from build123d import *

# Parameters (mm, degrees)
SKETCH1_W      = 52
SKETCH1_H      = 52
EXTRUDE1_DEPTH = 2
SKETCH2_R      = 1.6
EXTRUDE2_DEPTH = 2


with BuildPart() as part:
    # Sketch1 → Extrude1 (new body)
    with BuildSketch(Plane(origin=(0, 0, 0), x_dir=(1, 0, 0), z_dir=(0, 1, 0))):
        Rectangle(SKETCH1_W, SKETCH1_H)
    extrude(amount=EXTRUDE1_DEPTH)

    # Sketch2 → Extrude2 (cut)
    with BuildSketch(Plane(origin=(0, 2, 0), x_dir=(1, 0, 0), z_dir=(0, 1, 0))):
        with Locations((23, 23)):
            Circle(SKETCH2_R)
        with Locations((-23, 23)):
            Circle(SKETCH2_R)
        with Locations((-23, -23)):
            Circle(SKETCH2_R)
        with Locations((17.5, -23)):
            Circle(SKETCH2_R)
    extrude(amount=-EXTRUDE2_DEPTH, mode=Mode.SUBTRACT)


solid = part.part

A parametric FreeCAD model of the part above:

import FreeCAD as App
import Part
import Sketcher
Q = App.Units.Quantity

doc = App.newDocument("Part")
body = doc.addObject("PartDesign::Body", "Body")

# Sketch on XZ plane
sketch1 = body.newObject("Sketcher::SketchObject", "Sketch")
sketch1.AttachmentSupport = (doc.getObject("XZ_Plane"), [""])
sketch1.MapMode = "FlatFace"
sketch1.addGeometry(Part.LineSegment(App.Vector(-26, -26, 0), App.Vector(-26, 26, 0)), False)
sketch1.addGeometry(Part.LineSegment(App.Vector(-26, 26, 0), App.Vector(26, 26, 0)), False)
sketch1.addGeometry(Part.LineSegment(App.Vector(26, 26, 0), App.Vector(26, -26, 0)), False)
sketch1.addGeometry(Part.LineSegment(App.Vector(26, -26, 0), App.Vector(-26, -26, 0)), False)
sketch1.addConstraint(Sketcher.Constraint("Coincident", 0, 2, 1, 1))
sketch1.addConstraint(Sketcher.Constraint("Coincident", 1, 2, 2, 1))
sketch1.addConstraint(Sketcher.Constraint("Coincident", 2, 2, 3, 1))
sketch1.addConstraint(Sketcher.Constraint("Coincident", 3, 2, 0, 1))
sketch1.addConstraint(Sketcher.Constraint("Vertical", 0))
sketch1.addConstraint(Sketcher.Constraint("Horizontal", 1))
sketch1.addConstraint(Sketcher.Constraint("Vertical", 2))
sketch1.addConstraint(Sketcher.Constraint("Horizontal", 3))
sketch1.addConstraint(Sketcher.Constraint("Symmetric", 0, 2, 2, 2, -1, 1))
sketch1.addConstraint(Sketcher.Constraint("Equal", 3, 0))
sketch1.addConstraint(Sketcher.Constraint("DistanceX", 1, 1, 1, 2, Q("52 mm")))
pad1 = body.newObject("PartDesign::Pad", "Pad")
pad1.Profile = sketch1
pad1.Length = 2
pad1.Reversed = True

# Sketch on XZ plane
sketch2 = body.newObject("Sketcher::SketchObject", "Sketch001")
sketch2.AttachmentSupport = (doc.getObject("XZ_Plane"), [""])
sketch2.MapMode = "FlatFace"
sketch2.AttachmentOffset = App.Placement(App.Vector(0, 0, -2), App.Rotation())
sketch2.addGeometry(Part.Circle(App.Vector(23, -23, 0), App.Vector(0, 0, 1), 1.6), False)
sketch2.addGeometry(Part.Circle(App.Vector(-23, -23, 0), App.Vector(0, 0, 1), 1.6), False)
sketch2.addGeometry(Part.Circle(App.Vector(-23, 23, 0), App.Vector(0, 0, 1), 1.6), False)
sketch2.addGeometry(Part.Circle(App.Vector(17.5, 23, 0), App.Vector(0, 0, 1), 1.6), False)
sketch2.addConstraint(Sketcher.Constraint("Equal", 0, 1))
sketch2.addConstraint(Sketcher.Constraint("Equal", 1, 2))
sketch2.addConstraint(Sketcher.Constraint("Equal", 2, 3))
sketch2.addConstraint(Sketcher.Constraint("Symmetric", 0, 3, 2, 3, -1, 1))
sketch2.addConstraint(Sketcher.Constraint("Symmetric", 0, 3, 1, 3, -2))
sketch2.addConstraint(Sketcher.Constraint("Horizontal", 2, 3, 3, 3))
sketch2.addConstraint(Sketcher.Constraint("Diameter", 0, Q("3.2 mm")))
sketch2.addConstraint(Sketcher.Constraint("DistanceX", -1, 1, 0, 3, Q("23 mm")))
sketch2.addConstraint(Sketcher.Constraint("DistanceY", 0, 3, -1, 1, Q("23 mm")))
sketch2.addConstraint(Sketcher.Constraint("DistanceX", -1, 1, 3, 3, Q("17.5 mm")))
pocket1 = body.newObject("PartDesign::Pocket", "Pocket")
pocket1.Profile = sketch2
pocket1.Length = 2
pocket1.Reversed = True

doc.recompute()
